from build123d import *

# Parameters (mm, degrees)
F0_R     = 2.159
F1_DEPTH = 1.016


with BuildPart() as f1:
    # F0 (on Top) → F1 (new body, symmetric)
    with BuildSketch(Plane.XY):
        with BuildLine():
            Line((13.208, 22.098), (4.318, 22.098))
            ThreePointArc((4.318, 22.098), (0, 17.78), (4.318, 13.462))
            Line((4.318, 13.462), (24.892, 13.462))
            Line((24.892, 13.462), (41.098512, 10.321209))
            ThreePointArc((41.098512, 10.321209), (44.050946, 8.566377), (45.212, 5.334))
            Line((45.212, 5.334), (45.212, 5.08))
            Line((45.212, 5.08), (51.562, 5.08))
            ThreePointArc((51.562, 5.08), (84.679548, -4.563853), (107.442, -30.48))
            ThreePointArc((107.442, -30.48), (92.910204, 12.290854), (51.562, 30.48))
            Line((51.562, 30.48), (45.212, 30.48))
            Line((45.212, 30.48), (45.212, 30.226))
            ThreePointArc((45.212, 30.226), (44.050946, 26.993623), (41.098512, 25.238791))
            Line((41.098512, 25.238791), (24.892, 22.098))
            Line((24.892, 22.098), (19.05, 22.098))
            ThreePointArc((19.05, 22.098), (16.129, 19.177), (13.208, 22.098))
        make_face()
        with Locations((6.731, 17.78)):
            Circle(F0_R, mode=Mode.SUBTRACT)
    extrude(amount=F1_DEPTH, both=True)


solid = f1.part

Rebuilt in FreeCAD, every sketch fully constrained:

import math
import FreeCAD as App
import Part
import Sketcher

V = App.Vector
Q = App.Units.Quantity

doc = App.newDocument("Part")
body = doc.addObject("PartDesign::Body", "Body")

# Sketch on XY plane
sketch1 = body.newObject("Sketcher::SketchObject", "Sketch")
sketch1.AttachmentSupport = (doc.getObject("XY_Plane"), [""])
sketch1.MapMode = "FlatFace"
sketch1.addGeometry(Part.LineSegment(V(13.208, 22.098, 0), V(4.318, 22.098, 0)), False)
sketch1.addGeometry(Part.ArcOfCircle(Part.Circle(V(4.318, 17.78, 0), V(0, 0, 1), 4.318), math.radians(90), math.radians(270)), False)
sketch1.addGeometry(Part.LineSegment(V(4.318, 13.462, 0), V(24.892, 13.462, 0)), False)
sketch1.addGeometry(Part.LineSegment(V(24.892, 13.462, 0), V(41.098512, 10.321209, 0)), False)
sketch1.addGeometry(Part.ArcOfCircle(Part.Circle(V(40.132, 5.334, 0), V(0, 0, 1), 5.08), math.radians(0.000003), math.radians(79.032141)), False)
sketch1.addGeometry(Part.LineSegment(V(45.212, 5.334, 0), V(45.212, 5.08, 0)), False)
sketch1.addGeometry(Part.LineSegment(V(45.212, 5.08, 0), V(51.562, 5.08, 0)), False)
sketch1.addGeometry(Part.ArcOfCircle(Part.Circle(V(51.561999, -56.605716, 0), V(0, 0, 1), 61.685716), math.radians(25.057616), math.radians(89.999999)), False)
sketch1.addGeometry(Part.ArcOfCircle(Part.Circle(V(51.562, -25.611667, 0), V(0, 0, 1), 56.091667), math.radians(-4.979105), math.radians(90)), False)
sketch1.addGeometry(Part.LineSegment(V(51.562, 30.48, 0), V(45.212, 30.48, 0)), False)
sketch1.addGeometry(Part.LineSegment(V(45.212, 30.48, 0), V(45.212, 30.226, 0)), False)
sketch1.addGeometry(Part.ArcOfCircle(Part.Circle(V(40.132, 30.226, 0), V(0, 0, 1), 5.08), math.radians(-79.032141), math.radians(-0.000003)), False)
sketch1.addGeometry(Part.LineSegment(V(41.098512, 25.238791, 0), V(24.892, 22.098, 0)), False)
sketch1.addGeometry(Part.LineSegment(V(24.892, 22.098, 0), V(19.05, 22.098, 0)), False)
sketch1.addGeometry(Part.ArcOfCircle(Part.Circle(V(16.129, 22.098, 0), V(0, 0, 1), 2.921), math.radians(180), math.radians(360)), False)
sketch1.addGeometry(Part.Circle(V(6.731, 17.78, 0), V(0, 0, 1), 2.159), False)
sketch1.addConstraint(Sketcher.Constraint("Tangent", 0, 2, 1, 1))
sketch1.addConstraint(Sketcher.Constraint("Tangent", 1, 2, 2, 1))
sketch1.addConstraint(Sketcher.Constraint("Coincident", 2, 2, 3, 1))
sketch1.addConstraint(Sketcher.Constraint("Tangent", 3, 2, 4, 2))
sketch1.addConstraint(Sketcher.Constraint("Tangent", 4, 1, 5, 1))
sketch1.addConstraint(Sketcher.Constraint("Coincident", 5, 2, 6, 1))
sketch1.addConstraint(Sketcher.Constraint("Tangent", 6, 2, 7, 2))
sketch1.addConstraint(Sketcher.Constraint("Coincident", 7, 1, 8, 1))
sketch1.addConstraint(Sketcher.Constraint("Tangent", 8, 2, 9, 1))
sketch1.addConstraint(Sketcher.Constraint("Coincident", 9, 2, 10, 1))
sketch1.addConstraint(Sketcher.Constraint("Tangent", 10, 2, 11, 2))
sketch1.addConstraint(Sketcher.Constraint("Tangent", 11, 1, 12, 1))
sketch1.addConstraint(Sketcher.Constraint("Coincident", 12, 2, 13, 1))
sketch1.addConstraint(Sketcher.Constraint("Coincident", 13, 2, 14, 2))
sketch1.addConstraint(Sketcher.Constraint("Coincident", 14, 1, 0, 1))
sketch1.addConstraint(Sketcher.Constraint("Horizontal", 0))
sketch1.addConstraint(Sketcher.Constraint("Horizontal", 2))
sketch1.addConstraint(Sketcher.Constraint("Vertical", 5))
sketch1.addConstraint(Sketcher.Constraint("Horizontal", 6))
sketch1.addConstraint(Sketcher.Constraint("Horizontal", 9))
sketch1.addConstraint(Sketcher.Constraint("Vertical", 10))
sketch1.addConstraint(Sketcher.Constraint("Horizontal", 13))
sketch1.addConstraint(Sketcher.Constraint("Equal", 4, 11))
sketch1.addConstraint(Sketcher.Constraint("Horizontal", 1, 3, 15, 3))
sketch1.addConstraint(Sketcher.Constraint("Horizontal", 14, 3, 0, 2))
sketch1.addConstraint(Sketcher.Constraint("Horizontal", 0, 2, 12, 2))
sketch1.addConstraint(Sketcher.Constraint("Vertical", 7, 3, 8, 3))
sketch1.addConstraint(Sketcher.Constraint("Vertical", 4, 3, 11, 3))
sketch1.addConstraint(Sketcher.Constraint("Vertical", 3, 2, 11, 1))
sketch1.addConstraint(Sketcher.Constraint("Vertical", 2, 2, 12, 2))
sketch1.addConstraint(Sketcher.Constraint("Equal", 5, 10))
sketch1.addConstraint(Sketcher.Constraint("Radius", 4, Q("0.2 in")))
sketch1.addConstraint(Sketcher.Constraint("Diameter", 15, Q("0.17 in")))
sketch1.addConstraint(Sketcher.Constraint("Radius", 1, Q("0.17 in")))
sketch1.addConstraint(Sketcher.Constraint("Radius", 14, Q("0.115 in")))
sketch1.addConstraint(Sketcher.Constraint("DistanceY", 6, 2, 8, 2, Q("1 in")))
sketch1.addConstraint(Sketcher.Constraint("DistanceX", 0, 2, 0, 1, Q("0.35 in")))
sketch1.addConstraint(Sketcher.Constraint("DistanceX", 2, 1, 2, 2, Q("0.81 in")))
sketch1.addConstraint(Sketcher.Constraint("DistanceX", 6, 1, 6, 2, Q("0.25 in")))
sketch1.addConstraint(Sketcher.Constraint("DistanceY", 5, 2, 5, 1, Q("0.01 in")))
sketch1.addConstraint(Sketcher.Constraint("DistanceY", -1, 1, 1, 3, Q("0.7 in")))
sketch1.addConstraint(Sketcher.Constraint("DistanceY", 7, 1, -1, 1, Q("1.2 in")))
sketch1.addConstraint(Sketcher.Constraint("DistanceX", 2, 2, 4, 3, Q("0.6 in")))
sketch1.addConstraint(Sketcher.Constraint("DistanceX", 8, 3, 7, 1, Q("2.2 in")))
sketch1.addConstraint(Sketcher.Constraint("DistanceX", -1, 1, 1, 3, Q("0.17 in")))
sketch1.addConstraint(Sketcher.Constraint("DistanceX", 15, 3, 14, 3, Q("0.37 in")))
pad1 = body.newObject("PartDesign::Pad", "Pad")
pad1.Profile = sketch1
pad1.Length = Q("0.08 in")
pad1.Midplane = True

doc.recompute()
